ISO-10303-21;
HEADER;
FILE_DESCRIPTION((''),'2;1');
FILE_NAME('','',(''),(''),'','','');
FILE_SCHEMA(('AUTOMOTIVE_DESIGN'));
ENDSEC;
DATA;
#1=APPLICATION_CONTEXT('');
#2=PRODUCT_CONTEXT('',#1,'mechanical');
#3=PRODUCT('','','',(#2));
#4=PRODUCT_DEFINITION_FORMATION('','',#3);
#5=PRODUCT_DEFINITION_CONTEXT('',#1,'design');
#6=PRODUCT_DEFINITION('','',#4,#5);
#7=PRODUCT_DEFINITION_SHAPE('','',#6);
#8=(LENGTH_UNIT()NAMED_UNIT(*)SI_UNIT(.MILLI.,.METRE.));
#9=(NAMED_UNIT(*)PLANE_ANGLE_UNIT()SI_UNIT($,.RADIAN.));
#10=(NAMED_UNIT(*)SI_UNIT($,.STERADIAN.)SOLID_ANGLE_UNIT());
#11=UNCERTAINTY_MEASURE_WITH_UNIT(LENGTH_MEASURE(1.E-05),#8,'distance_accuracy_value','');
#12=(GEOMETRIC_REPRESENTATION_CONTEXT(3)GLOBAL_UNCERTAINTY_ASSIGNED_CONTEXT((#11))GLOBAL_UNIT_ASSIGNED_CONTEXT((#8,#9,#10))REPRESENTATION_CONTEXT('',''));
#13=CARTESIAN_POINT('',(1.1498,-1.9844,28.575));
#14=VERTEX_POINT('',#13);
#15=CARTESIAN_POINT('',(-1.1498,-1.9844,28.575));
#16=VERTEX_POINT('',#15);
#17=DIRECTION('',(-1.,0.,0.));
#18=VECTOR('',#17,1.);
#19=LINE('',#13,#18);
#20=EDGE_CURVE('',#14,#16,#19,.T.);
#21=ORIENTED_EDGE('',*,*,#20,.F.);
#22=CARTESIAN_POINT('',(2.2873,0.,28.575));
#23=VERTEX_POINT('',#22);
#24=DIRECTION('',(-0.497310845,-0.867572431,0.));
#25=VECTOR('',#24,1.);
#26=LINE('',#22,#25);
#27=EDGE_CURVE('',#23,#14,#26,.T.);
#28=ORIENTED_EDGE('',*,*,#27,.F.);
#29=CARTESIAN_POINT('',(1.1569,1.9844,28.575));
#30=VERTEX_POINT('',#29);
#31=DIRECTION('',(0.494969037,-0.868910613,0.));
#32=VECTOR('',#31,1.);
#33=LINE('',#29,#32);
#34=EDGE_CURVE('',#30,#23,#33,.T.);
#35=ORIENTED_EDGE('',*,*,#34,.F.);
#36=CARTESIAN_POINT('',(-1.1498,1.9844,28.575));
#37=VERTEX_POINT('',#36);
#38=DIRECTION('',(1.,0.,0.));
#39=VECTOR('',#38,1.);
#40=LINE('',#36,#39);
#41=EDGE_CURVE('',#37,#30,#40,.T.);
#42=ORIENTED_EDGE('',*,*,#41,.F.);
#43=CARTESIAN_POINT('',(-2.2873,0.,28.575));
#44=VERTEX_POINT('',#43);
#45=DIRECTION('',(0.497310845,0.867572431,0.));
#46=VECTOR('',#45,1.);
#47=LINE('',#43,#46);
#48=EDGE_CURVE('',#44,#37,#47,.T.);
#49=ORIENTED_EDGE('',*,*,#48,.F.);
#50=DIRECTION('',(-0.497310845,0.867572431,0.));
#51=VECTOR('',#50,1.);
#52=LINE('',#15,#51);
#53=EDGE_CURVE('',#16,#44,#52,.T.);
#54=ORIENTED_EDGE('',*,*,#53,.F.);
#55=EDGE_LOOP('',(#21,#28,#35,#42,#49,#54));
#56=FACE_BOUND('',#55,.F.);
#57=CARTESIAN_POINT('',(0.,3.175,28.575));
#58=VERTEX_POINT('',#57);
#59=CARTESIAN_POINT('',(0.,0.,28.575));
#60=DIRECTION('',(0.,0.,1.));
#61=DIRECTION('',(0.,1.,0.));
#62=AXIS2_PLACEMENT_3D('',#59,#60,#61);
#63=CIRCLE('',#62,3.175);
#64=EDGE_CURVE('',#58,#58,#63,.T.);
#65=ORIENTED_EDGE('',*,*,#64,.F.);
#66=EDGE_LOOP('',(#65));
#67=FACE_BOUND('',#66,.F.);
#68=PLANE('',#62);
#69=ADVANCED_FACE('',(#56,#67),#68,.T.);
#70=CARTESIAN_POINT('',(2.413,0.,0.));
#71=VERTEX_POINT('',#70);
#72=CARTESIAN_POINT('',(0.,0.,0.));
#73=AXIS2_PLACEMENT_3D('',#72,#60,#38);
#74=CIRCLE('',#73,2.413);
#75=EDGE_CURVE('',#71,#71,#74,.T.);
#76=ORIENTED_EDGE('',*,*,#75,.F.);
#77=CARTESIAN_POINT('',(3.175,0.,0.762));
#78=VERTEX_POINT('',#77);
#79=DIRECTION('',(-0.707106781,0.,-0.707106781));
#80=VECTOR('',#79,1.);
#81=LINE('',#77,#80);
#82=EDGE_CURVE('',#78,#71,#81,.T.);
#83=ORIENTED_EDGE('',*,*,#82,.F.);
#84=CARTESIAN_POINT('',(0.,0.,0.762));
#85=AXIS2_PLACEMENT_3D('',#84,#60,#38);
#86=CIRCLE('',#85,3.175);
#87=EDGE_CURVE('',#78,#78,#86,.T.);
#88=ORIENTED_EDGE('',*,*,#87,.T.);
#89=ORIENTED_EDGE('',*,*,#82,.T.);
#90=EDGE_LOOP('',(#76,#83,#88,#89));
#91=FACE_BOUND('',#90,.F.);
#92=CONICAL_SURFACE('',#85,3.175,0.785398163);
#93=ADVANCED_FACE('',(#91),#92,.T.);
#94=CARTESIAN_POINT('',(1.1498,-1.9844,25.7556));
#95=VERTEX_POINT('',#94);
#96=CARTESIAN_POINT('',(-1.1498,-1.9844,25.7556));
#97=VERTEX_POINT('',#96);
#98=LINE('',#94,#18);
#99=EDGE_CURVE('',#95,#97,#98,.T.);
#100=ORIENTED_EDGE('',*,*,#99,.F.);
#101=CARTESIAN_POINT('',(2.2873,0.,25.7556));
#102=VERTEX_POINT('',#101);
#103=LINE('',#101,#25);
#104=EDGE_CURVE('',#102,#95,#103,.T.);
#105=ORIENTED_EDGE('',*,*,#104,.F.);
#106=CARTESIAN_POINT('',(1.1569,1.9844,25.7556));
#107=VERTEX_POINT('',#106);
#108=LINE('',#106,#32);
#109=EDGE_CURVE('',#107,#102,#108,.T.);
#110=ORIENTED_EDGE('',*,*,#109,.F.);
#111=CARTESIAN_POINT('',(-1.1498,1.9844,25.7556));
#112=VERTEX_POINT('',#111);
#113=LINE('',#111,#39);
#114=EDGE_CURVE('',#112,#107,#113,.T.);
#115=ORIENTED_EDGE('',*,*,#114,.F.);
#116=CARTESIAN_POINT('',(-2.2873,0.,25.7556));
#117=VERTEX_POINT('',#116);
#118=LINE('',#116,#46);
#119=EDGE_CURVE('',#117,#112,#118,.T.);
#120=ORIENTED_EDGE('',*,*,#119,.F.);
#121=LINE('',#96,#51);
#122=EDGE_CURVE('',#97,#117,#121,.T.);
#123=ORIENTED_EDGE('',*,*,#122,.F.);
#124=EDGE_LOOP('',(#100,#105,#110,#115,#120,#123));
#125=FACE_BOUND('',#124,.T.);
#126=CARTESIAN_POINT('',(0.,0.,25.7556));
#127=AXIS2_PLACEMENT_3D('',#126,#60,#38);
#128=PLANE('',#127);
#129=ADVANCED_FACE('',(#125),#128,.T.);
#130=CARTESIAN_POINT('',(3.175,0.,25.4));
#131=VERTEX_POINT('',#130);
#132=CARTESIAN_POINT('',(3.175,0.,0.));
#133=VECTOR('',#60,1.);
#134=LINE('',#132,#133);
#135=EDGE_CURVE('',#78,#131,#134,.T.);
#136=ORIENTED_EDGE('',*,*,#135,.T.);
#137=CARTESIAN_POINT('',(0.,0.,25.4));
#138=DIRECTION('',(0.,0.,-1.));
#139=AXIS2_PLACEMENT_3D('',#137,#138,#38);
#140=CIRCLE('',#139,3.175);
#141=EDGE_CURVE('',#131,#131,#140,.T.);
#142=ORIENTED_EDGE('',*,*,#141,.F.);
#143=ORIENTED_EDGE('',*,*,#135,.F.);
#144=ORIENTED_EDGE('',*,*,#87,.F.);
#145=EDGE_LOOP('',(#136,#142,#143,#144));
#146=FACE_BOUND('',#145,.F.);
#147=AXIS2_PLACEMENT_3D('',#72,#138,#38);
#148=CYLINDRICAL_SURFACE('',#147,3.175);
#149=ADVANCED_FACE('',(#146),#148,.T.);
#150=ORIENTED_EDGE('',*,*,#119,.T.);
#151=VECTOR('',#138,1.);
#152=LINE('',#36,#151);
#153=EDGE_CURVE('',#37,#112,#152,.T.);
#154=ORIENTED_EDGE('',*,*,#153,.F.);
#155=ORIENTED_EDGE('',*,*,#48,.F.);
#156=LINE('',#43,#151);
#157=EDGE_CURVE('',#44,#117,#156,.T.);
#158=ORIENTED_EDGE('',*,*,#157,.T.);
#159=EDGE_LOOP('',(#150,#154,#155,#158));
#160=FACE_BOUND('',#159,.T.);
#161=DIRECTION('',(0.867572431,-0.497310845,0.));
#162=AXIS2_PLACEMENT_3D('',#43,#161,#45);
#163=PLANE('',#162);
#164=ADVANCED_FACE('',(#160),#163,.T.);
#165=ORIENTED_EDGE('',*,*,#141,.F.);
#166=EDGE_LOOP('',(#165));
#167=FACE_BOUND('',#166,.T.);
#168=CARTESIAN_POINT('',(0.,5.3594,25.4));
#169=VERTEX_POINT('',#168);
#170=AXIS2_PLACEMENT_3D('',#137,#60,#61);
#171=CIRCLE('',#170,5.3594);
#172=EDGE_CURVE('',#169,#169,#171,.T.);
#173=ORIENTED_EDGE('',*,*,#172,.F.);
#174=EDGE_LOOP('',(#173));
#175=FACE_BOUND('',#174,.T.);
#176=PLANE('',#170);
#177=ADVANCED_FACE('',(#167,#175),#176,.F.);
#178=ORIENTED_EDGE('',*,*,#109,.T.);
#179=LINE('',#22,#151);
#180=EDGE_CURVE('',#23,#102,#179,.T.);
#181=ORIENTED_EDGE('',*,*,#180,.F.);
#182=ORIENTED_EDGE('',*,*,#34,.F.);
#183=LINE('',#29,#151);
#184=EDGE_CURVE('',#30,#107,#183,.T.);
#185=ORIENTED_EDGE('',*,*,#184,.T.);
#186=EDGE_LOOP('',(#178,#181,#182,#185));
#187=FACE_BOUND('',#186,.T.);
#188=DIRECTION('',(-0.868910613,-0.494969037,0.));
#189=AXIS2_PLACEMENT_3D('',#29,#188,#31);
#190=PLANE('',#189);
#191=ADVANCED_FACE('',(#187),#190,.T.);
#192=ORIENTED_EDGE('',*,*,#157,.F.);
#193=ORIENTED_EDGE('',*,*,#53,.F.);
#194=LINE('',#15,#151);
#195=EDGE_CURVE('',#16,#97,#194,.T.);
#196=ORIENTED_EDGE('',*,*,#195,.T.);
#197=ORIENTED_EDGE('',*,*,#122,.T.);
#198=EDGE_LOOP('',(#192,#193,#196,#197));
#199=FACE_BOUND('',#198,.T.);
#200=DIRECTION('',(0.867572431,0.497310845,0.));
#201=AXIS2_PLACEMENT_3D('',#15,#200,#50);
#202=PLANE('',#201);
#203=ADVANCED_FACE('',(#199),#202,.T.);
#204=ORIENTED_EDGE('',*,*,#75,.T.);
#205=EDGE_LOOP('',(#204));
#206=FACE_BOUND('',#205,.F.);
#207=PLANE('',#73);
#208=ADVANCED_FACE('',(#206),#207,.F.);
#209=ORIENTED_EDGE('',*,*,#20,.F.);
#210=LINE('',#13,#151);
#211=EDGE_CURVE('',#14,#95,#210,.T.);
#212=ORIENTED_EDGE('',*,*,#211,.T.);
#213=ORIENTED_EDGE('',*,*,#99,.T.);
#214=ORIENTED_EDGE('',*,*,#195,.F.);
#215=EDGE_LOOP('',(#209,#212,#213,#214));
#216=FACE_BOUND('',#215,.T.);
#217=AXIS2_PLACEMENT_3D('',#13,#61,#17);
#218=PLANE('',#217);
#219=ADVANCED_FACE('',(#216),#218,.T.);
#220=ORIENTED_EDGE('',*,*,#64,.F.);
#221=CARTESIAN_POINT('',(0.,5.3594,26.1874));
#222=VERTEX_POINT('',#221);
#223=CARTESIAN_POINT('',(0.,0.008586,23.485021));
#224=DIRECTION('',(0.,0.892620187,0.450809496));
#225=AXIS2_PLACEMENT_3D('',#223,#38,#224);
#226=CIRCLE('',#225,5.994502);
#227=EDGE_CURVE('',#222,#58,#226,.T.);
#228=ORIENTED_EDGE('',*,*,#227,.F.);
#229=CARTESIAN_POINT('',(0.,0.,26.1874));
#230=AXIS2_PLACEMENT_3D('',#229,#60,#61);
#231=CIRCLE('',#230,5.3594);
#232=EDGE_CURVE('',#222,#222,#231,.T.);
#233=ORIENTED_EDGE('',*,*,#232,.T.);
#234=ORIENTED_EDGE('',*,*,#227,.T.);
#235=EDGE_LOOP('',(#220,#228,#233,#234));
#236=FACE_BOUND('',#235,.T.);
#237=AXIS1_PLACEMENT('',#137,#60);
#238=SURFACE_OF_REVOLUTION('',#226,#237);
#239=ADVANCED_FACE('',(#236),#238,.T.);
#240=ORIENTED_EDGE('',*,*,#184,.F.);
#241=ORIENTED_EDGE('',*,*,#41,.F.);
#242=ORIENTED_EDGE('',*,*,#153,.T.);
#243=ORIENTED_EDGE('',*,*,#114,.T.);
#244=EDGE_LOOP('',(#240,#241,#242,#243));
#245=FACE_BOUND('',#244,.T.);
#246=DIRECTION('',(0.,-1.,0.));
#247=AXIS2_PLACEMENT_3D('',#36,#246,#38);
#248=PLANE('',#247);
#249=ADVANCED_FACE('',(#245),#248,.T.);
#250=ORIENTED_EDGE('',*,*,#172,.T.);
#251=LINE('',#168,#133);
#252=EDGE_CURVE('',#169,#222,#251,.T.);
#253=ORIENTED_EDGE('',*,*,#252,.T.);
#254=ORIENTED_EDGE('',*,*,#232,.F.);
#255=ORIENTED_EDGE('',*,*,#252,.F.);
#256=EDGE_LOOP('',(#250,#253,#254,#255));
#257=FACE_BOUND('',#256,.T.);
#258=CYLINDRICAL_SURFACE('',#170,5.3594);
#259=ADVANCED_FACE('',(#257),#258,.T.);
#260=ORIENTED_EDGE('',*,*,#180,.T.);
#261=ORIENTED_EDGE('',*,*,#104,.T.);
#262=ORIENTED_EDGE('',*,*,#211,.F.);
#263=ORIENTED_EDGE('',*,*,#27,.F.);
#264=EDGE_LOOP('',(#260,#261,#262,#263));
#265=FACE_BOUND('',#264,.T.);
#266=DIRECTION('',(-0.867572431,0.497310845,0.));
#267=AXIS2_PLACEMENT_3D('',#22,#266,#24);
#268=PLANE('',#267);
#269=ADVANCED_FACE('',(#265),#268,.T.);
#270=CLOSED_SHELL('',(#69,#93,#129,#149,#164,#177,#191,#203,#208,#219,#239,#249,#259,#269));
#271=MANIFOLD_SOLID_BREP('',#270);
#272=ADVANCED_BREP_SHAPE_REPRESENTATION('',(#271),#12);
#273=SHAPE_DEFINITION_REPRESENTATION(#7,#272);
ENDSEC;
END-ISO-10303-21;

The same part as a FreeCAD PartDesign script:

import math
import FreeCAD as App
import Part
import Sketcher
Q = App.Units.Quantity


def edges_at(feature, points):
    """Names of the edges that pass closest to the given points."""
    edges = feature.Shape.Edges
    near = lambda p: min(range(len(edges)), key=lambda i: edges[i].distToShape(Part.Vertex(*p))[0])
    return sorted({f"Edge{near(p) + 1}" for p in points})


def add_polygon(sketch, points):
    """Adds a closed chain of lines whose ends are joined by coincident constraints."""
    first, n = sketch.GeometryCount, len(points)
    for a, b in zip(points, points[1:] + points[:1]):
        sketch.addGeometry(Part.LineSegment(App.Vector(*a, 0), App.Vector(*b, 0)), False)
    for i in range(n):
        sketch.addConstraint(Sketcher.Constraint("Coincident", first + i, 2, first + (i + 1) % n, 1))

doc = App.newDocument("Part")
body = doc.addObject("PartDesign::Body", "Body")

sketch1 = body.newObject("Sketcher::SketchObject", "Sketch")
sketch1.AttachmentSupport = (doc.getObject("XY_Plane"), [""])
sketch1.MapMode = "FlatFace"
sketch1.addGeometry(Part.Circle(App.Vector(0, 0, 0), App.Vector(0, 0, 1), 3.2), False)
sketch1.addConstraint([
    Sketcher.Constraint("Coincident", 0, 3, -1, 1),
    Sketcher.Constraint("Diameter", 0, Q("0.25 in")),
])
pad1 = body.newObject("PartDesign::Pad", "Pad")
pad1.Profile = sketch1
pad1.Length = Q("1 in")

sketch2 = body.newObject("Sketcher::SketchObject", "Sketch001")
sketch2.AttachmentSupport = (doc.getObject("YZ_Plane"), [""])
sketch2.MapMode = "FlatFace"
sketch2.addGeometry([
    Part.LineSegment(App.Vector(0, 25.4, 0), App.Vector(5.4, 25.4, 0)),
    Part.LineSegment(App.Vector(5.4, 25.4, 0), App.Vector(5.4, 26.2, 0)),
    Part.ArcOfCircle(Part.Circle(App.Vector(0, 23.5, 0), App.Vector(0, 0, 1), 6), math.radians(27), math.radians(58)),
    Part.LineSegment(App.Vector(3.2, 28.6, 0), App.Vector(0, 28.6, 0)),
    Part.LineSegment(App.Vector(0, 28.6, 0), App.Vector(0, 25.4, 0)),
], False)
sketch2.addConstraint([
    Sketcher.Constraint("Coincident", 0, 2, 1, 1),
    Sketcher.Constraint("Coincident", 1, 2, 2, 1),
    Sketcher.Constraint("Coincident", 2, 2, 3, 1),
    Sketcher.Constraint("Coincident", 3, 2, 4, 1),
    Sketcher.Constraint("Coincident", 4, 2, 0, 1),
    Sketcher.Constraint("Horizontal", 0),
    Sketcher.Constraint("Vertical", 1),
    Sketcher.Constraint("Horizontal", 3),
    Sketcher.Constraint("Vertical", 4),
    Sketcher.Constraint("PointOnObject", 3, 2, -2),
    Sketcher.Constraint("Equal", 3, 4),
    Sketcher.Constraint("Radius", 2, Q("0.236 in")),
    Sketcher.Constraint("DistanceX", 0, 1, 0, 2, Q("0.211 in")),
    Sketcher.Constraint("DistanceX", 3, 2, 3, 1, Q("0.125 in")),
    Sketcher.Constraint("DistanceY", 1, 1, 1, 2, Q("0.031 in")),
    Sketcher.Constraint("DistanceY", -1, 1, 0, 2, Q("1 in")),
])
revolution = body.newObject("PartDesign::Revolution", "Revolution")
revolution.Profile = sketch2
revolution.ReferenceAxis = (sketch2, ["V_Axis"])
revolution.Angle = 360

sketch3 = body.newObject("Sketcher::SketchObject", "Sketch002")
sketch3.AttachmentSupport = (doc.getObject("XY_Plane"), [""])
sketch3.MapMode = "FlatFace"
sketch3.AttachmentOffset = App.Placement(App.Vector(0, 0, 1.125 * 25.4), App.Rotation())
add_polygon(sketch3, [(-1.1, -2), (1.1, -2), (2.3, 0), (1.2, 2), (-1.1, 2), (-2.3, 0)])
sketch3.addConstraint([
    Sketcher.Constraint("Horizontal", 0),
    Sketcher.Constraint("Horizontal", 3),
    Sketcher.Constraint("Symmetric", 0, 2, 3, 2, -1, 1),
    Sketcher.Constraint("Symmetric", 1, 2, 4, 2, -1, 1),
    Sketcher.Constraint("PointOnObject", 1, 2, -1),
    Sketcher.Constraint("Vertical", 3, 2, 5, 2),
    Sketcher.Constraint("DistanceY", 0, 2, -1, 1, Q("0.078126 in")),
    Sketcher.Constraint("DistanceX", 0, 1, 0, 2, Q("2.2996 mm")),
    Sketcher.Constraint("DistanceX", 3, 2, 3, 1, Q("2.3067 mm")),
    Sketcher.Constraint("DistanceX", 2, 2, 1, 2, Q("0.0445 in")),
])
pocket1 = body.newObject("PartDesign::Pocket", "Pocket")
pocket1.Profile = sketch3
pocket1.Length = Q("0.111 in")
doc.recompute()

chamfer = body.newObject("PartDesign::Chamfer", "Chamfer")
chamfer.Base = (pocket1, edges_at(pocket1, [(-3.175, 0, 0)]))
chamfer.Size = Q("0.03 in")

doc.recompute()
